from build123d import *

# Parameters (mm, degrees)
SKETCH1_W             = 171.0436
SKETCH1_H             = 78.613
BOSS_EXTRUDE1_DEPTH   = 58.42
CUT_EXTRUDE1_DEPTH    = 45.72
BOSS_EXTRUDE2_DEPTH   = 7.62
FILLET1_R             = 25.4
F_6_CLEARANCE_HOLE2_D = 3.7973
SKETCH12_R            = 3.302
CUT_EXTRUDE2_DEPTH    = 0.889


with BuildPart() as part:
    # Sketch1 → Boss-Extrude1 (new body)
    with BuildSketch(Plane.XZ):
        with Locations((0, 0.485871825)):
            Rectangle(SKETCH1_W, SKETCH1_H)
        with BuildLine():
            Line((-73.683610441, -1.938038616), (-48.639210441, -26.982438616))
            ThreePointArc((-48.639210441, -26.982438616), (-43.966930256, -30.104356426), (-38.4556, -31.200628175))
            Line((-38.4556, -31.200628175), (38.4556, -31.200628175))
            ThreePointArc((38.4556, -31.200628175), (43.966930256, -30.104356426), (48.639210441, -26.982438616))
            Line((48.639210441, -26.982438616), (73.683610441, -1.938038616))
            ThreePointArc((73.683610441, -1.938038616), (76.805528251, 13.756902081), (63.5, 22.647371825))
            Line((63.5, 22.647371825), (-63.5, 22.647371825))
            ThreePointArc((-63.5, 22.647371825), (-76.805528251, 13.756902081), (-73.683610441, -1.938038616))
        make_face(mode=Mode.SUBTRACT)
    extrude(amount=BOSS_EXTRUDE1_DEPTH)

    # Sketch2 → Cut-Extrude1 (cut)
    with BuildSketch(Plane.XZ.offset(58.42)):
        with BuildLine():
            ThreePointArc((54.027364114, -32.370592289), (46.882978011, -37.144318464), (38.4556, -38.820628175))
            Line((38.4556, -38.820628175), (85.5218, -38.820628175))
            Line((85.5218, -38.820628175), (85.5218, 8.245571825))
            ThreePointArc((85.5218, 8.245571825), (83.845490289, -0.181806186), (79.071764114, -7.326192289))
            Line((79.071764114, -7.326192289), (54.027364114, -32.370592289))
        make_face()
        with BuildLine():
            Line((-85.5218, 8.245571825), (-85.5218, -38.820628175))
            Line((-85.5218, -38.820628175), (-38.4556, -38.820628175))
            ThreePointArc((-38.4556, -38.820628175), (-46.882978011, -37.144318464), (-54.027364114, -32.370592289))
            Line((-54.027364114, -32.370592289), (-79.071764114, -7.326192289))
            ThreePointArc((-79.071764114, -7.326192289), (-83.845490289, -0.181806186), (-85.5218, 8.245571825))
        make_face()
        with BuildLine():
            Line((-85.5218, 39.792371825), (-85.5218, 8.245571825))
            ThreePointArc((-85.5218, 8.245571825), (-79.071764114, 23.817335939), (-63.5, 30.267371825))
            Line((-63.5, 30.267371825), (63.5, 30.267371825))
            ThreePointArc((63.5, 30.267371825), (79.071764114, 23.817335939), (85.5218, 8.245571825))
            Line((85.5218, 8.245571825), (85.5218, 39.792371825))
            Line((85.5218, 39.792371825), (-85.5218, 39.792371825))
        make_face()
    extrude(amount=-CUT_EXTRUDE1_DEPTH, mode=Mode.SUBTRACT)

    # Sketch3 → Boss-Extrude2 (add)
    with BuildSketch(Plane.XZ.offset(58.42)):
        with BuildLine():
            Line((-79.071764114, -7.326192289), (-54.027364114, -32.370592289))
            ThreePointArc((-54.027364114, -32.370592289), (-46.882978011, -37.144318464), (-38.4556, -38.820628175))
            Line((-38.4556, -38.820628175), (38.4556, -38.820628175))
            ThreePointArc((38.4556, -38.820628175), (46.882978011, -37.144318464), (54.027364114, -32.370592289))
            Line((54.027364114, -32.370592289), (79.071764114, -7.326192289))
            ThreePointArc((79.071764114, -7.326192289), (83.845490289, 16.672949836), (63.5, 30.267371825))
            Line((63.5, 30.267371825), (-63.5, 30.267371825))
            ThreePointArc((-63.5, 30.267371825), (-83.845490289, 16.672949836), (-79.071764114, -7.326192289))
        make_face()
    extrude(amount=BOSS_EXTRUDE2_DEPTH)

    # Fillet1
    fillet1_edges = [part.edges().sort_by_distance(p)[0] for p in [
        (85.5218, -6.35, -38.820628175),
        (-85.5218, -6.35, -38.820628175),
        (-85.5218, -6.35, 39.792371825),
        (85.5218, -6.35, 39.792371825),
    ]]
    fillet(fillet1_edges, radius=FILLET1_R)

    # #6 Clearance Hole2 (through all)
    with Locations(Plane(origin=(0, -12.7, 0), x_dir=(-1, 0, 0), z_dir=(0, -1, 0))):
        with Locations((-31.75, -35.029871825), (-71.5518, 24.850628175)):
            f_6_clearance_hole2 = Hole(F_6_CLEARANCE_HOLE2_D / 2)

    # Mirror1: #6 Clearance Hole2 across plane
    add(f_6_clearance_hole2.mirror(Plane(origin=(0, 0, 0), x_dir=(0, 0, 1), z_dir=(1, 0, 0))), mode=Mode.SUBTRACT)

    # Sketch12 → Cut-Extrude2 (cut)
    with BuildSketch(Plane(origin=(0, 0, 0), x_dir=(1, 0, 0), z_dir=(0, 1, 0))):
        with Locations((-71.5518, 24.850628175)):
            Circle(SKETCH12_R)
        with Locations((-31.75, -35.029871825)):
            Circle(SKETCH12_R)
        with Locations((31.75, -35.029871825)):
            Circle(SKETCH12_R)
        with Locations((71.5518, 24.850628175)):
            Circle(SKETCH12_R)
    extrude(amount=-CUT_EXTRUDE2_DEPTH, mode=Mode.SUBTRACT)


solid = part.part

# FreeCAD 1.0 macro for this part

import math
import FreeCAD as App
import Part
import Sketcher
from FreeCAD import Vector
Q = App.Units.Quantity


def edges_at(feature, points):
    """Names of the edges that pass closest to the given points."""
    edges = feature.Shape.Edges
    near = lambda p: min(range(len(edges)), key=lambda i: edges[i].distToShape(Part.Vertex(*p))[0])
    return sorted({f"Edge{near(p) + 1}" for p in points})


def add_polygon(sketch, points):
    """Adds a closed chain of lines whose ends are joined by coincident constraints."""
    first, n = sketch.GeometryCount, len(points)
    for a, b in zip(points, points[1:] + points[:1]):
        sketch.addGeometry(Part.LineSegment(App.Vector(*a, 0), App.Vector(*b, 0)), False)
    for i in range(n):
        sketch.addConstraint(Sketcher.Constraint("Coincident", first + i, 2, first + (i + 1) % n, 1))

doc = App.newDocument("Part")
params = doc.addObject("Spreadsheet::Sheet", "Params")
for row, (alias, value) in enumerate([
    ("sketch1_width", "5 in"),
    ("sketch1_radius", "0.567 in"),
    ("sketch1_width2", "6.734 in"),
    ("sketch1_width3", "3.028 in"),
    ("sketch1_height", "3.095 in"),
    ("pad1_length", "2.3 in"),
    ("sketch2_width", "5 in"),
    ("sketch2_radius", "0.867 in"),
    ("sketch2_width2", "1.853 in"),
    ("sketch2_height", "1.242 in"),
    ("pocket1_length", "1.8 in"),
    ("sketch3_width", "5 in"),
    ("sketch3_radius", "0.867 in"),
    ("sketch3_width2", "3.028 in"),
    ("pad2_length", "0.3 in"),
    ("fillet_radius", "1 in"),
    ("hole_diameter", "0.1495 in"),
    ("sketch5_diameter", "0.26 in"),
    ("pocket2_length", "0.035 in"),
], start=1):
    params.set(f"A{row}", alias)
    params.set(f"B{row}", "=" + value)
    params.setAlias(f"B{row}", alias)

body = doc.addObject("PartDesign::Body", "Body")

# Sketch on XZ plane
sketch1 = body.newObject("Sketcher::SketchObject", "Sketch")
sketch1.AttachmentSupport = (doc.getObject("XZ_Plane"), [""])
sketch1.MapMode = "FlatFace"
add_polygon(sketch1, [(-85.5218, 39.792372), (-85.5218, -38.820628), (85.5218, -38.820628), (85.5218, 39.792372)])  # lines 0-3
sketch1.addGeometry(Part.LineSegment(Vector(-48.63921, -26.982439, 0), Vector(-73.68361, -1.938039, 0)), False)  # 4
sketch1.addGeometry(Part.ArcOfCircle(Part.Circle(Vector(-63.5, 8.245572, 0), Vector(0, 0, 1), 14.4018), math.radians(90), math.radians(225)), False)  # 5
sketch1.addGeometry(Part.LineSegment(Vector(-63.5, 22.647372, 0), Vector(63.5, 22.647372, 0)), False)  # 6
sketch1.addGeometry(Part.ArcOfCircle(Part.Circle(Vector(63.5, 8.245572, 0), Vector(0, 0, 1), 14.4018), math.radians(-45), math.radians(90)), False)  # 7
sketch1.addGeometry(Part.LineSegment(Vector(73.68361, -1.938039, 0), Vector(48.63921, -26.982439, 0)), False)  # 8
sketch1.addGeometry(Part.ArcOfCircle(Part.Circle(Vector(38.4556, -16.798828, 0), Vector(0, 0, 1), 14.4018), math.radians(-90), math.radians(-45)), False)  # 9
sketch1.addGeometry(Part.LineSegment(Vector(38.4556, -31.200628, 0), Vector(-38.4556, -31.200628, 0)), False)  # 10
sketch1.addGeometry(Part.ArcOfCircle(Part.Circle(Vector(-38.4556, -16.798828, 0), Vector(0, 0, 1), 14.4018), math.radians(-135), math.radians(-90)), False)  # 11
sketch1.addConstraint([
    Sketcher.Constraint("Tangent", 4, 2, 5, 2),
    Sketcher.Constraint("Tangent", 5, 1, 6, 1),
    Sketcher.Constraint("Tangent", 6, 2, 7, 2),
    Sketcher.Constraint("Tangent", 7, 1, 8, 1),
    Sketcher.Constraint("Tangent", 8, 2, 9, 2),
    Sketcher.Constraint("Tangent", 9, 1, 10, 1),
    Sketcher.Constraint("Tangent", 10, 2, 11, 2),
    Sketcher.Constraint("Tangent", 11, 1, 4, 1),
    Sketcher.Constraint("Vertical", 0),
    Sketcher.Constraint("Horizontal", 1),
    Sketcher.Constraint("Vertical", 2),
    Sketcher.Constraint("Horizontal", 3),
    Sketcher.Constraint("Horizontal", 6),
    Sketcher.Constraint("Horizontal", 10),
    Sketcher.Constraint("Equal", 5, 7),
    Sketcher.Constraint("Equal", 7, 9),
    Sketcher.Constraint("Equal", 9, 11),
    Sketcher.Constraint("Symmetric", 4, 2, 7, 1, -2),
    Sketcher.Constraint("Perpendicular", 4, 8),
    Sketcher.Constraint("DistanceX", 6, 1, 6, 2, Q("5 in")),
    Sketcher.Constraint("Radius", 5, Q("0.567 in")),
    Sketcher.Constraint("DistanceY", 1, 2, 9, 1, Q("0.3 in")),
    Sketcher.Constraint("DistanceX", 1, 1, 1, 2, Q("6.734 in")),
    Sketcher.Constraint("DistanceX", 10, 2, 10, 1, Q("3.028 in")),
    Sketcher.Constraint("DistanceY", 0, 2, 0, 1, Q("3.095 in")),
    Sketcher.Constraint("DistanceX", 0, 2, -1, 1, Q("3.367 in")),
    Sketcher.Constraint("DistanceY", -1, 1, 5, 3, 8.245572),
])
sketch1.setExpression("Constraints[23]", "Params.sketch1_width")
sketch1.setExpression("Constraints[24]", "Params.sketch1_radius")
sketch1.setExpression("Constraints[26]", "Params.sketch1_width2")
sketch1.setExpression("Constraints[27]", "Params.sketch1_width3")
sketch1.setExpression("Constraints[28]", "Params.sketch1_height")
pad1 = body.newObject("PartDesign::Pad", "Pad")
pad1.Profile = sketch1
pad1.setExpression("Length", "Params.pad1_length")

# Sketch on XZ plane
sketch2 = body.newObject("Sketcher::SketchObject", "Sketch001")
sketch2.AttachmentSupport = (doc.getObject("XZ_Plane"), [""])
sketch2.MapMode = "FlatFace"
sketch2.AttachmentOffset = App.Placement(Vector(0, 0, 2.3 * 25.4), App.Rotation())
sketch2.addGeometry([
    Part.ArcOfCircle(Part.Circle(Vector(38.4556, -16.798828, 0), Vector(0, 0, 1), 22.0218), math.radians(-90), math.radians(-45)),  # 0
    Part.LineSegment(Vector(38.4556, -38.820628, 0), Vector(85.5218, -38.820628, 0)),  # 1
    Part.LineSegment(Vector(85.5218, -38.820628, 0), Vector(85.5218, 8.245572, 0)),  # 2
    Part.ArcOfCircle(Part.Circle(Vector(63.5, 8.245572, 0), Vector(0, 0, 1), 22.0218), math.radians(-45), math.radians(0)),  # 3
    Part.LineSegment(Vector(79.071764, -7.326192, 0), Vector(54.027364, -32.370592, 0)),  # 4
    Part.LineSegment(Vector(-85.5218, 8.245572, 0), Vector(-85.5218, -38.820628, 0)),  # 5
    Part.LineSegment(Vector(-85.5218, -38.820628, 0), Vector(-38.4556, -38.820628, 0)),  # 6
    Part.ArcOfCircle(Part.Circle(Vector(-38.4556, -16.798828, 0), Vector(0, 0, 1), 22.0218), math.radians(-135), math.radians(-90)),  # 7
    Part.LineSegment(Vector(-54.027364, -32.370592, 0), Vector(-79.071764, -7.326192, 0)),  # 8
    Part.ArcOfCircle(Part.Circle(Vector(-63.5, 8.245572, 0), Vector(0, 0, 1), 22.0218), math.radians(180), math.radians(225)),  # 9
    Part.LineSegment(Vector(-85.5218, 39.792372, 0), Vector(-85.5218, 8.245572, 0)),  # 10
    Part.ArcOfCircle(Part.Circle(Vector(-63.5, 8.245572, 0), Vector(0, 0, 1), 22.0218), math.radians(90), math.radians(180)),  # 11
    Part.LineSegment(Vector(-63.5, 30.267372, 0), Vector(63.5, 30.267372, 0)),  # 12
    Part.ArcOfCircle(Part.Circle(Vector(63.5, 8.245572, 0), Vector(0, 0, 1), 22.0218), math.radians(0), math.radians(90)),  # 13
    Part.LineSegment(Vector(85.5218, 8.245572, 0), Vector(85.5218, 39.792372, 0)),  # 14
    Part.LineSegment(Vector(85.5218, 39.792372, 0), Vector(-85.5218, 39.792372, 0)),  # 15
], False)
sketch2.addConstraint([
    Sketcher.Constraint("Tangent", 0, 1, 1, 1),
    Sketcher.Constraint("Coincident", 1, 2, 2, 1),
    Sketcher.Constraint("Tangent", 2, 2, 3, 2),
    Sketcher.Constraint("Tangent", 3, 1, 4, 1),
    Sketcher.Constraint("Tangent", 4, 2, 0, 2),
    Sketcher.Constraint("Coincident", 5, 2, 6, 1),
    Sketcher.Constraint("Tangent", 6, 2, 7, 2),
    Sketcher.Constraint("Tangent", 7, 1, 8, 1),
    Sketcher.Constraint("Tangent", 8, 2, 9, 2),
    Sketcher.Constraint("Tangent", 9, 1, 5, 1),
    Sketcher.Constraint("Tangent", 10, 2, 11, 2),
    Sketcher.Constraint("Tangent", 11, 1, 12, 1),
    Sketcher.Constraint("Tangent", 12, 2, 13, 2),
    Sketcher.Constraint("Tangent", 13, 1, 14, 1),
    Sketcher.Constraint("Coincident", 14, 2, 15, 1),
    Sketcher.Constraint("Coincident", 15, 2, 10, 1),
    Sketcher.Constraint("Horizontal", 1),
    Sketcher.Constraint("Vertical", 2),
    Sketcher.Constraint("Vertical", 5),
    Sketcher.Constraint("Horizontal", 6),
    Sketcher.Constraint("Vertical", 10),
    Sketcher.Constraint("Horizontal", 12),
    Sketcher.Constraint("Vertical", 14),
    Sketcher.Constraint("Horizontal", 15),
    Sketcher.Constraint("Coincident", 11, 3, 9, 3),
    Sketcher.Constraint("Coincident", 13, 3, 3, 3),
    Sketcher.Constraint("Equal", 0, 3),
    Sketcher.Constraint("Equal", 3, 7),
    Sketcher.Constraint("Equal", 7, 9),
    Sketcher.Constraint("Equal", 9, 11),
    Sketcher.Constraint("Equal", 11, 13),
    Sketcher.Constraint("Symmetric", 0, 3, 7, 3, -2),
    Sketcher.Constraint("Perpendicular", 4, 8),
    Sketcher.Constraint("Horizontal", 4, 2, 7, 1),
    Sketcher.Constraint("DistanceX", 12, 1, 12, 2, Q("5 in")),
    Sketcher.Constraint("Radius", 0, Q("0.867 in")),
    Sketcher.Constraint("DistanceX", 1, 1, 1, 2, Q("1.853 in")),
    Sketcher.Constraint("DistanceY", 10, 2, 10, 1, Q("1.242 in")),
    Sketcher.Constraint("DistanceY", 0, 3, -1, 1, 16.798828),
])
sketch2.setExpression("Constraints[34]", "Params.sketch2_width")
sketch2.setExpression("Constraints[35]", "Params.sketch2_radius")
sketch2.setExpression("Constraints[36]", "Params.sketch2_width2")
sketch2.setExpression("Constraints[37]", "Params.sketch2_height")
pocket1 = body.newObject("PartDesign::Pocket", "Pocket")
pocket1.Profile = sketch2
pocket1.setExpression("Length", "Params.pocket1_length")

# Sketch on XZ plane
sketch3 = body.newObject("Sketcher::SketchObject", "Sketch002")
sketch3.AttachmentSupport = (doc.getObject("XZ_Plane"), [""])
sketch3.MapMode = "FlatFace"
sketch3.AttachmentOffset = App.Placement(Vector(0, 0, 2.3 * 25.4), App.Rotation())
sketch3.addGeometry([
    Part.LineSegment(Vector(-79.071764, -7.326192, 0), Vector(-54.027364, -32.370592, 0)),  # 0
    Part.ArcOfCircle(Part.Circle(Vector(-38.4556, -16.798828, 0), Vector(0, 0, 1), 22.0218), math.radians(-135), math.radians(-90)),  # 1
    Part.LineSegment(Vector(-38.4556, -38.820628, 0), Vector(38.4556, -38.820628, 0)),  # 2
    Part.ArcOfCircle(Part.Circle(Vector(38.4556, -16.798828, 0), Vector(0, 0, 1), 22.0218), math.radians(-90), math.radians(-45)),  # 3
    Part.LineSegment(Vector(54.027364, -32.370592, 0), Vector(79.071764, -7.326192, 0)),  # 4
    Part.ArcOfCircle(Part.Circle(Vector(63.5, 8.245572, 0), Vector(0, 0, 1), 22.0218), math.radians(-45), math.radians(90)),  # 5
    Part.LineSegment(Vector(63.5, 30.267372, 0), Vector(-63.5, 30.267372, 0)),  # 6
    Part.ArcOfCircle(Part.Circle(Vector(-63.5, 8.245572, 0), Vector(0, 0, 1), 22.0218), math.radians(90), math.radians(225)),  # 7
], False)
sketch3.addConstraint([
    Sketcher.Constraint("Tangent", 0, 2, 1, 1),
    Sketcher.Constraint("Tangent", 1, 2, 2, 1),
    Sketcher.Constraint("Tangent", 2, 2, 3, 1),
    Sketcher.Constraint("Tangent", 3, 2, 4, 1),
    Sketcher.Constraint("Tangent", 4, 2, 5, 1),
    Sketcher.Constraint("Tangent", 5, 2, 6, 1),
    Sketcher.Constraint("Tangent", 6, 2, 7, 1),
    Sketcher.Constraint("Tangent", 7, 2, 0, 1),
    Sketcher.Constraint("Horizontal", 2),
    Sketcher.Constraint("Horizontal", 6),
    Sketcher.Constraint("Equal", 1, 3),
    Sketcher.Constraint("Equal", 3, 5),
    Sketcher.Constraint("Equal", 5, 7),
    Sketcher.Constraint("Symmetric", 0, 2, 3, 2, -2),
    Sketcher.Constraint("Perpendicular", 0, 4),
    Sketcher.Constraint("DistanceX", 6, 2, 6, 1, Q("5 in")),
    Sketcher.Constraint("Radius", 1, Q("0.867 in")),
    Sketcher.Constraint("DistanceX", 2, 1, 2, 2, Q("3.028 in")),
    Sketcher.Constraint("DistanceY", 1, 3, -1, 1, 16.798828),
])
sketch3.setExpression("Constraints[15]", "Params.sketch3_width")
sketch3.setExpression("Constraints[16]", "Params.sketch3_radius")
sketch3.setExpression("Constraints[17]", "Params.sketch3_width2")
pad2 = body.newObject("PartDesign::Pad", "Pad001")
pad2.Profile = sketch3
pad2.setExpression("Length", "Params.pad2_length")
doc.recompute()

fillet = body.newObject("PartDesign::Fillet", "Fillet")
fillet.Base = (pad2, edges_at(pad2, [
    (85.522, -6.35, -38.821),
    (-85.522, -6.35, -38.821),
    (-85.522, -6.35, 39.792),
    (85.522, -6.35, 39.792),
]))
fillet.setExpression("Radius", "Params.fillet_radius")

# Sketch on XZ plane
sketch4 = body.newObject("Sketcher::SketchObject", "Sketch003")
sketch4.AttachmentSupport = (doc.getObject("XZ_Plane"), [""])
sketch4.MapMode = "FlatFace"
sketch4.AttachmentOffset = App.Placement(Vector(0, 0, 0.5 * 25.4), App.Rotation())
sketch4.addGeometry([
    Part.Circle(Vector(31.75, 35.029872, 0), Vector(0, 0, 1), 1.89865),
    Part.Circle(Vector(71.5518, -24.850628, 0), Vector(0, 0, 1), 1.89865),
], False)
sketch4.addConstraint([
    Sketcher.Constraint("Equal", 0, 1),
    Sketcher.Constraint("Diameter", 0, Q("0.1495 in")),
    Sketcher.Constraint("DistanceX", -1, 1, 0, 3, Q("1.25 in")),
    Sketcher.Constraint("DistanceX", -1, 1, 1, 3, Q("2.817 in")),
    Sketcher.Constraint("DistanceY", 1, 3, 0, 3, Q("2.3575 in")),
    Sketcher.Constraint("DistanceY", -1, 1, 0, 3, 35.029872),
])
doc.recompute()
hole = body.newObject("PartDesign::Hole", "Hole")
hole.Profile = sketch4
hole.ThreadType = "None"
hole.setExpression("Diameter", "Params.hole_diameter")
hole.DepthType = "ThroughAll"
doc.recompute()

mirrored = body.newObject("PartDesign::Mirrored", "Mirrored")
mirrored.Originals = [hole]
mirrored.MirrorPlane = (doc.getObject("YZ_Plane"), [""])
body.Tip = mirrored

# Sketch on XZ plane
sketch5 = body.newObject("Sketcher::SketchObject", "Sketch004")
sketch5.AttachmentSupport = (doc.getObject("XZ_Plane"), [""])
sketch5.MapMode = "FlatFace"
sketch5.addGeometry([
    Part.Circle(Vector(-71.5518, -24.850628, 0), Vector(0, 0, 1), 3.302),
    Part.Circle(Vector(-31.75, 35.029872, 0), Vector(0, 0, 1), 3.302),
    Part.Circle(Vector(31.75, 35.029872, 0), Vector(0, 0, 1), 3.302),
    Part.Circle(Vector(71.5518, -24.850628, 0), Vector(0, 0, 1), 3.302),
], False)
sketch5.addConstraint([
    Sketcher.Constraint("Equal", 0, 1),
    Sketcher.Constraint("Equal", 1, 2),
    Sketcher.Constraint("Equal", 2, 3),
    Sketcher.Constraint("Symmetric", 1, 3, 2, 3, -2),
    Sketcher.Constraint("Symmetric", 0, 3, 3, 3, -2),
    Sketcher.Constraint("Diameter", 0, Q("0.26 in")),
    Sketcher.Constraint("DistanceX", 1, 3, 2, 3, Q("2.5 in")),
    Sketcher.Constraint("DistanceX", 0, 3, -1, 1, Q("2.817 in")),
    Sketcher.Constraint("DistanceY", 0, 3, 1, 3, Q("2.3575 in")),
    Sketcher.Constraint("DistanceY", 0, 3, -1, 1, 24.850628),
])
sketch5.setExpression("Constraints[5]", "Params.sketch5_diameter")
pocket2 = body.newObject("PartDesign::Pocket", "Pocket001")
pocket2.Profile = sketch5
pocket2.setExpression("Length", "Params.pocket2_length")
pocket2.Reversed = True

doc.recompute()
